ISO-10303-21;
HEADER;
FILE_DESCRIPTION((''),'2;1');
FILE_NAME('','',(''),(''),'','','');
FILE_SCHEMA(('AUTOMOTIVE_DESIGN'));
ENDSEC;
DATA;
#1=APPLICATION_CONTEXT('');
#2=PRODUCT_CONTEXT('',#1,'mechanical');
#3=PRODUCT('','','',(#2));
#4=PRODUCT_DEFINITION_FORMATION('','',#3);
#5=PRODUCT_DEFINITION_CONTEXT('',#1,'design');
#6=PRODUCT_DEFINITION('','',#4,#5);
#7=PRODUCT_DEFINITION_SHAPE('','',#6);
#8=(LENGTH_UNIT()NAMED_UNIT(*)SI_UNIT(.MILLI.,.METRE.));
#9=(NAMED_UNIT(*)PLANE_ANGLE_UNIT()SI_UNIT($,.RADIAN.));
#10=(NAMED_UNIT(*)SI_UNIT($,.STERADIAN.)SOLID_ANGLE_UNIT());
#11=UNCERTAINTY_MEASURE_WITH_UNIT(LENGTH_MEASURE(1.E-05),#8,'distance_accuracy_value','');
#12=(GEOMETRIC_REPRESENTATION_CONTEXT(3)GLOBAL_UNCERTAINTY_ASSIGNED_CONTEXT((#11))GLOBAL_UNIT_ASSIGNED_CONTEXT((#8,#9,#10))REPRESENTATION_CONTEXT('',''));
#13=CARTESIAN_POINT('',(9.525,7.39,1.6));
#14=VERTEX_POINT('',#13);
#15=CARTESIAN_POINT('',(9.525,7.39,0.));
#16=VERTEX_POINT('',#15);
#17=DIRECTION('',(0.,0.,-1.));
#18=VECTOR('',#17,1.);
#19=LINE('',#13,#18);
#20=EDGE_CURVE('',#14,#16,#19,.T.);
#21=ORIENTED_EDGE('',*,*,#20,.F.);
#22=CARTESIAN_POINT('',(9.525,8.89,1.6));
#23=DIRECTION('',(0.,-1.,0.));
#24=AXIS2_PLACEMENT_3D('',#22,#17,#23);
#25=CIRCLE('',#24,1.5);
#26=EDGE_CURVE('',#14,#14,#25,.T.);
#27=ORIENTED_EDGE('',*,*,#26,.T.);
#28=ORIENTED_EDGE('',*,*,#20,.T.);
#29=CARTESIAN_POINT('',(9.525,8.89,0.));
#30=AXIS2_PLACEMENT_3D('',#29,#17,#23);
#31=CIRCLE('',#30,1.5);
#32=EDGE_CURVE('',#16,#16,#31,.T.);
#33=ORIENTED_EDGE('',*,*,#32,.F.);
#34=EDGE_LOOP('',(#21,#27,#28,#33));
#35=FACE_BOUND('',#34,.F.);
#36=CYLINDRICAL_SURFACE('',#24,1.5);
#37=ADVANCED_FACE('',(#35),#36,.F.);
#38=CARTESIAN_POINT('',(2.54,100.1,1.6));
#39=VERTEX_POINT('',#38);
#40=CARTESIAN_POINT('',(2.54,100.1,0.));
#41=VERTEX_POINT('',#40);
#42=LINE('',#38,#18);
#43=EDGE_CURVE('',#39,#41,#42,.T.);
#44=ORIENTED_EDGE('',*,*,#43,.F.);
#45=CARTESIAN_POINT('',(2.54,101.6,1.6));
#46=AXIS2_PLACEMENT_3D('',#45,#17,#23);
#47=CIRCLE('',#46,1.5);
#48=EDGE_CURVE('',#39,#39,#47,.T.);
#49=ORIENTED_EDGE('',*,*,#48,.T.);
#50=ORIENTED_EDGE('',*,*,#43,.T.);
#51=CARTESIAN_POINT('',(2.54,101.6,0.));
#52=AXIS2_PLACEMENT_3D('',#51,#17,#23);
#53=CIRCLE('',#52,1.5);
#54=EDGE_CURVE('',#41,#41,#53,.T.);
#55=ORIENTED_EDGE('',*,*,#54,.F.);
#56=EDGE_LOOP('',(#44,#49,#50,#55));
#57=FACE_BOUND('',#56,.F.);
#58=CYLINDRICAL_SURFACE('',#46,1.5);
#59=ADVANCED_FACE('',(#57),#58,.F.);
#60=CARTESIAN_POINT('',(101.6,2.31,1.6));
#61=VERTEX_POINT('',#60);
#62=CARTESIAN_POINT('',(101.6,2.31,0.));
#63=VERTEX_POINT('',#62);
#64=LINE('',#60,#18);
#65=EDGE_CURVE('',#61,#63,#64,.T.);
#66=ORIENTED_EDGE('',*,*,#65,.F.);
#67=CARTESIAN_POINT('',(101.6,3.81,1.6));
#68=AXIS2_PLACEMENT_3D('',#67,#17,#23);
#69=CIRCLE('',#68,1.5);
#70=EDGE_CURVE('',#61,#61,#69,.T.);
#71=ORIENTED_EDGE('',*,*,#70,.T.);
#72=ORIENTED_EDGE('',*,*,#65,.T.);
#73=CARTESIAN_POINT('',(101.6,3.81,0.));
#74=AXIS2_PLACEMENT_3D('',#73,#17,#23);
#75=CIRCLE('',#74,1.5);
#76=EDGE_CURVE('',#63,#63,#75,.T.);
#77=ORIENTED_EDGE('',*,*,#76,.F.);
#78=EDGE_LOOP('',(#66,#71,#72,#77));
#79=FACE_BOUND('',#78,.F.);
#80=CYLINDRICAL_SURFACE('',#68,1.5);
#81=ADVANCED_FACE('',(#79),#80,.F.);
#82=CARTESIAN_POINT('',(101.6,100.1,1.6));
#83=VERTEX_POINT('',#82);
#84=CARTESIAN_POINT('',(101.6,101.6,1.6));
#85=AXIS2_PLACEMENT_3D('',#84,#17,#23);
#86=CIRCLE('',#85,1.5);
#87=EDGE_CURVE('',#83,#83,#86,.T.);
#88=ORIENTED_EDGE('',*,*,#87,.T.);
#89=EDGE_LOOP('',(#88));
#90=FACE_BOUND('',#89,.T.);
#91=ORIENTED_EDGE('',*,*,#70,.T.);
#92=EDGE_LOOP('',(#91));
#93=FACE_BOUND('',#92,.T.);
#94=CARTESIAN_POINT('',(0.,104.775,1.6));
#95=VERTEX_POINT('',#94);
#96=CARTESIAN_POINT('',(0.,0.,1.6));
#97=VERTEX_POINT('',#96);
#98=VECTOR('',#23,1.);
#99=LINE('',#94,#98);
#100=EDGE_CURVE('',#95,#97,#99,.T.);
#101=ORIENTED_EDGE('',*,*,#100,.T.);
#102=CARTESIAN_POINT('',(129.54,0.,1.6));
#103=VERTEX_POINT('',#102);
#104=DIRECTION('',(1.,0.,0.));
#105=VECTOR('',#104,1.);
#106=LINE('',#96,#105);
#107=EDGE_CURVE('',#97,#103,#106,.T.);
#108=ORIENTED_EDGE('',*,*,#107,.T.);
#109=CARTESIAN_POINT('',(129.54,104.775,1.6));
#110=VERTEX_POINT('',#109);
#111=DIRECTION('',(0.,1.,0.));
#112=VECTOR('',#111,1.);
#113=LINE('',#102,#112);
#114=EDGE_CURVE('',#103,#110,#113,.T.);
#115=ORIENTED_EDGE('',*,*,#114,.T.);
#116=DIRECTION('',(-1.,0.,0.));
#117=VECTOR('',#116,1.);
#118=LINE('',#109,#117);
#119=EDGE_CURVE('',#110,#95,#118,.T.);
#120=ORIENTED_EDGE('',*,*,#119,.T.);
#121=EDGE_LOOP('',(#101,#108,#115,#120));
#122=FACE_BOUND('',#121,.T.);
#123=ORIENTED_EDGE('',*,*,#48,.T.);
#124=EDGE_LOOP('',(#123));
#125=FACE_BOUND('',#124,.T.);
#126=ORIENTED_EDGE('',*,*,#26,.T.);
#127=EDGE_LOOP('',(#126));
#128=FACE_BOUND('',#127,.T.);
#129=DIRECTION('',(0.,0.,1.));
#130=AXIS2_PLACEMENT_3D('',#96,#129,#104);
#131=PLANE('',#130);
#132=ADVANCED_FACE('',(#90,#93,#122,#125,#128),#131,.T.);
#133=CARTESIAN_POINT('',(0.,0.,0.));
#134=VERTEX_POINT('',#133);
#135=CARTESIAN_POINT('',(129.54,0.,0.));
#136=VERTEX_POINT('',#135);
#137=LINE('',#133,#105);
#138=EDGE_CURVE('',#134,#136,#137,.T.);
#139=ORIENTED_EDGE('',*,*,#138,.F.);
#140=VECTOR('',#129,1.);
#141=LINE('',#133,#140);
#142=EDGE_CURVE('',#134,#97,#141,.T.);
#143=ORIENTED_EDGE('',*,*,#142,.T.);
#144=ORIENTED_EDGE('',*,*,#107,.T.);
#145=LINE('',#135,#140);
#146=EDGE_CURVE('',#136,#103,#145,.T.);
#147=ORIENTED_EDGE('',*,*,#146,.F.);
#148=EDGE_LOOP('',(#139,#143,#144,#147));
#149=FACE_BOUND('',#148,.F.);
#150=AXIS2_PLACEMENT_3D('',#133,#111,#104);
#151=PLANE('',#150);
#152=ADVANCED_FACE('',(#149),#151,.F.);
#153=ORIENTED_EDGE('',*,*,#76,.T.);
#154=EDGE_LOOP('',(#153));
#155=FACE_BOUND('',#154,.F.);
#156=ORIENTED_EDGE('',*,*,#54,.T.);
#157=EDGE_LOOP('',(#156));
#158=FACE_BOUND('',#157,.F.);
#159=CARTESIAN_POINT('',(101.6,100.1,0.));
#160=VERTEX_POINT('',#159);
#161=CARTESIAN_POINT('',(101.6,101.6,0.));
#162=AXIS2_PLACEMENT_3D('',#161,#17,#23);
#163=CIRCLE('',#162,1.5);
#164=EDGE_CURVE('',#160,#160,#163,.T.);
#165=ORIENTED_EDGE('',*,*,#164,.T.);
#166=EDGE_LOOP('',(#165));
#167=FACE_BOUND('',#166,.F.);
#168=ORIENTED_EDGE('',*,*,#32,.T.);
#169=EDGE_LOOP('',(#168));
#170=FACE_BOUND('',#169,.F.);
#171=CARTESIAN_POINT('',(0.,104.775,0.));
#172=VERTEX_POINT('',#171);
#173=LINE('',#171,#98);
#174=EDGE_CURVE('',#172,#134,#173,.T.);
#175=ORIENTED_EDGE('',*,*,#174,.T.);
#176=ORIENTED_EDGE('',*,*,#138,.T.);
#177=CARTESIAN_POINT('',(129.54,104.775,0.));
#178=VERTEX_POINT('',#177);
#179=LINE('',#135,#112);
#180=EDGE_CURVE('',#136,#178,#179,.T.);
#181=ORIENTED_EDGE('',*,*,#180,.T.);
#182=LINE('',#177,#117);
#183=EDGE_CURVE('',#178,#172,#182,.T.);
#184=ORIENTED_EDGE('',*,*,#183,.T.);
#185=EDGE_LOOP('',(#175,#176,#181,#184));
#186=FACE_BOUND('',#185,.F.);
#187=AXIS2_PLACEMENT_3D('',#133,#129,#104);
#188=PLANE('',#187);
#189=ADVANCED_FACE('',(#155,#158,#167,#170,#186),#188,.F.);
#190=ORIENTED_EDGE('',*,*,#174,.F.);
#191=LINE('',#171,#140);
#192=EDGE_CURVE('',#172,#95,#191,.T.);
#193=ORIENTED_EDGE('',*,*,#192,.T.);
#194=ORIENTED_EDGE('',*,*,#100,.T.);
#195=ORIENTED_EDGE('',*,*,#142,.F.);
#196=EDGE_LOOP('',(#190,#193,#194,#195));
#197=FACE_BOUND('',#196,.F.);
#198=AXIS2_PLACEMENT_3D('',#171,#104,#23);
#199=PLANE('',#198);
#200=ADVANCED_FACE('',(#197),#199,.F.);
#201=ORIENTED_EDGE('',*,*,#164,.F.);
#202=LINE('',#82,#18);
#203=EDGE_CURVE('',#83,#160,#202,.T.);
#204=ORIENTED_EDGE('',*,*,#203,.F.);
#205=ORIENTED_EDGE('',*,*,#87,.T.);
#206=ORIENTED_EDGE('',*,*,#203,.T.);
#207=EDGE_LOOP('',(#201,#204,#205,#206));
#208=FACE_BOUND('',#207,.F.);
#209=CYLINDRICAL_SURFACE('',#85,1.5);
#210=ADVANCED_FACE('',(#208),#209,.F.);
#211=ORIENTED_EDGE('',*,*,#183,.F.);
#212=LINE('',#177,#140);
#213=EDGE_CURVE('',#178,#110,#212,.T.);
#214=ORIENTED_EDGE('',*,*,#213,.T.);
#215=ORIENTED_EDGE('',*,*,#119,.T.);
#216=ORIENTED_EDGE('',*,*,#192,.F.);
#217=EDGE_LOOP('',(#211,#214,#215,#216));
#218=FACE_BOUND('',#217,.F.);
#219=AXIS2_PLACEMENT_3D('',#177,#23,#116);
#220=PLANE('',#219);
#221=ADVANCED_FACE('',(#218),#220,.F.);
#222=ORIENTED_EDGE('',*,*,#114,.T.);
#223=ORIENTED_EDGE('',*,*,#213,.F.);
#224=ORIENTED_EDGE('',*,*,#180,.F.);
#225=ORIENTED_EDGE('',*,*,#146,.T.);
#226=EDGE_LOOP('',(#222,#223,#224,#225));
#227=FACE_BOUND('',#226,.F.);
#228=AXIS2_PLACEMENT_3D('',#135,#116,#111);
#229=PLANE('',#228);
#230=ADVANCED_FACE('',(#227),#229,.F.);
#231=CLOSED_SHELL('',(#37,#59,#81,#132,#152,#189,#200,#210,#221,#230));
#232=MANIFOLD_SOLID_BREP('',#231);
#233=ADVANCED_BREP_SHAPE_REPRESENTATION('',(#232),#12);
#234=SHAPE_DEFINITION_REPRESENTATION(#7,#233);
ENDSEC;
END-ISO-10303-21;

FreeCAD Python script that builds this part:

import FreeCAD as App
import Part
import Sketcher

V = App.Vector
Q = App.Units.Quantity

doc = App.newDocument("Part")
body = doc.addObject("PartDesign::Body", "Body")

# Sketch on XY plane
sketch1 = body.newObject("Sketcher::SketchObject", "Sketch")
sketch1.AttachmentSupport = (doc.getObject("XY_Plane"), [""])
sketch1.MapMode = "FlatFace"
sketch1.addGeometry([
    Part.LineSegment(V(0, 104.775, 0), V(0, 0, 0)),
    Part.LineSegment(V(0, 0, 0), V(129.54, 0, 0)),
    Part.LineSegment(V(129.54, 0, 0), V(129.54, 104.775, 0)),
    Part.LineSegment(V(129.54, 104.775, 0), V(0, 104.775, 0)),
], False)
sketch1.addConstraint([
    Sketcher.Constraint("Coincident", 0, 2, 1, 1),
    Sketcher.Constraint("Coincident", 1, 2, 2, 1),
    Sketcher.Constraint("Coincident", 2, 2, 3, 1),
    Sketcher.Constraint("Coincident", 3, 2, 0, 1),
    Sketcher.Constraint("Vertical", 0),
    Sketcher.Constraint("Horizontal", 1),
    Sketcher.Constraint("Vertical", 2),
    Sketcher.Constraint("Horizontal", 3),
    Sketcher.Constraint("Coincident", 0, 2, -1, 1),
    Sketcher.Constraint("DistanceX", 1, 1, 1, 2, Q("5.1 in")),
    Sketcher.Constraint("DistanceY", 0, 2, 0, 1, Q("4.125 in")),
])
pad1 = body.newObject("PartDesign::Pad", "Pad")
pad1.Profile = sketch1
pad1.Length = Q("0.0629921 in")

# Sketch on XY plane
sketch2 = body.newObject("Sketcher::SketchObject", "Sketch001")
sketch2.AttachmentSupport = (doc.getObject("XY_Plane"), [""])
sketch2.MapMode = "FlatFace"
sketch2.AttachmentOffset = App.Placement(V(0, 0, 0.0629921 * 25.4), App.Rotation())
sketch2.addGeometry([
    Part.Circle(V(9.525, 8.89, 0), V(0, 0, 1), 1.5),
    Part.Circle(V(101.6, 3.81, 0), V(0, 0, 1), 1.5),
    Part.Circle(V(2.54, 101.6, 0), V(0, 0, 1), 1.5),
    Part.Circle(V(101.6, 101.6, 0), V(0, 0, 1), 1.5),
], False)
sketch2.addConstraint([
    Sketcher.Constraint("Equal", 0, 1),
    Sketcher.Constraint("Equal", 1, 2),
    Sketcher.Constraint("Equal", 2, 3),
    Sketcher.Constraint("Horizontal", 2, 3, 3, 3),
    Sketcher.Constraint("Vertical", 1, 3, 3, 3),
    Sketcher.Constraint("DistanceX", -1, 1, 1, 3, Q("4 in")),
    Sketcher.Constraint("DistanceY", -1, 1, 2, 3, Q("4 in")),
    Sketcher.Constraint("Diameter", 0, Q("0.1181 in")),
    Sketcher.Constraint("DistanceX", -1, 1, 2, 3, Q("0.1 in")),
    Sketcher.Constraint("DistanceY", 1, 3, 0, 3, Q("0.2 in")),
    Sketcher.Constraint("DistanceY", -1, 1, 0, 3, Q("0.35 in")),
    Sketcher.Constraint("DistanceX", -1, 1, 0, 3, Q("0.375 in")),
])
doc.recompute()
hole = body.newObject("PartDesign::Hole", "Hole")
hole.Profile = sketch2
hole.ThreadType = "None"
hole.Diameter = Q("0.1181102 in")
hole.DepthType = "ThroughAll"

doc.recompute()
